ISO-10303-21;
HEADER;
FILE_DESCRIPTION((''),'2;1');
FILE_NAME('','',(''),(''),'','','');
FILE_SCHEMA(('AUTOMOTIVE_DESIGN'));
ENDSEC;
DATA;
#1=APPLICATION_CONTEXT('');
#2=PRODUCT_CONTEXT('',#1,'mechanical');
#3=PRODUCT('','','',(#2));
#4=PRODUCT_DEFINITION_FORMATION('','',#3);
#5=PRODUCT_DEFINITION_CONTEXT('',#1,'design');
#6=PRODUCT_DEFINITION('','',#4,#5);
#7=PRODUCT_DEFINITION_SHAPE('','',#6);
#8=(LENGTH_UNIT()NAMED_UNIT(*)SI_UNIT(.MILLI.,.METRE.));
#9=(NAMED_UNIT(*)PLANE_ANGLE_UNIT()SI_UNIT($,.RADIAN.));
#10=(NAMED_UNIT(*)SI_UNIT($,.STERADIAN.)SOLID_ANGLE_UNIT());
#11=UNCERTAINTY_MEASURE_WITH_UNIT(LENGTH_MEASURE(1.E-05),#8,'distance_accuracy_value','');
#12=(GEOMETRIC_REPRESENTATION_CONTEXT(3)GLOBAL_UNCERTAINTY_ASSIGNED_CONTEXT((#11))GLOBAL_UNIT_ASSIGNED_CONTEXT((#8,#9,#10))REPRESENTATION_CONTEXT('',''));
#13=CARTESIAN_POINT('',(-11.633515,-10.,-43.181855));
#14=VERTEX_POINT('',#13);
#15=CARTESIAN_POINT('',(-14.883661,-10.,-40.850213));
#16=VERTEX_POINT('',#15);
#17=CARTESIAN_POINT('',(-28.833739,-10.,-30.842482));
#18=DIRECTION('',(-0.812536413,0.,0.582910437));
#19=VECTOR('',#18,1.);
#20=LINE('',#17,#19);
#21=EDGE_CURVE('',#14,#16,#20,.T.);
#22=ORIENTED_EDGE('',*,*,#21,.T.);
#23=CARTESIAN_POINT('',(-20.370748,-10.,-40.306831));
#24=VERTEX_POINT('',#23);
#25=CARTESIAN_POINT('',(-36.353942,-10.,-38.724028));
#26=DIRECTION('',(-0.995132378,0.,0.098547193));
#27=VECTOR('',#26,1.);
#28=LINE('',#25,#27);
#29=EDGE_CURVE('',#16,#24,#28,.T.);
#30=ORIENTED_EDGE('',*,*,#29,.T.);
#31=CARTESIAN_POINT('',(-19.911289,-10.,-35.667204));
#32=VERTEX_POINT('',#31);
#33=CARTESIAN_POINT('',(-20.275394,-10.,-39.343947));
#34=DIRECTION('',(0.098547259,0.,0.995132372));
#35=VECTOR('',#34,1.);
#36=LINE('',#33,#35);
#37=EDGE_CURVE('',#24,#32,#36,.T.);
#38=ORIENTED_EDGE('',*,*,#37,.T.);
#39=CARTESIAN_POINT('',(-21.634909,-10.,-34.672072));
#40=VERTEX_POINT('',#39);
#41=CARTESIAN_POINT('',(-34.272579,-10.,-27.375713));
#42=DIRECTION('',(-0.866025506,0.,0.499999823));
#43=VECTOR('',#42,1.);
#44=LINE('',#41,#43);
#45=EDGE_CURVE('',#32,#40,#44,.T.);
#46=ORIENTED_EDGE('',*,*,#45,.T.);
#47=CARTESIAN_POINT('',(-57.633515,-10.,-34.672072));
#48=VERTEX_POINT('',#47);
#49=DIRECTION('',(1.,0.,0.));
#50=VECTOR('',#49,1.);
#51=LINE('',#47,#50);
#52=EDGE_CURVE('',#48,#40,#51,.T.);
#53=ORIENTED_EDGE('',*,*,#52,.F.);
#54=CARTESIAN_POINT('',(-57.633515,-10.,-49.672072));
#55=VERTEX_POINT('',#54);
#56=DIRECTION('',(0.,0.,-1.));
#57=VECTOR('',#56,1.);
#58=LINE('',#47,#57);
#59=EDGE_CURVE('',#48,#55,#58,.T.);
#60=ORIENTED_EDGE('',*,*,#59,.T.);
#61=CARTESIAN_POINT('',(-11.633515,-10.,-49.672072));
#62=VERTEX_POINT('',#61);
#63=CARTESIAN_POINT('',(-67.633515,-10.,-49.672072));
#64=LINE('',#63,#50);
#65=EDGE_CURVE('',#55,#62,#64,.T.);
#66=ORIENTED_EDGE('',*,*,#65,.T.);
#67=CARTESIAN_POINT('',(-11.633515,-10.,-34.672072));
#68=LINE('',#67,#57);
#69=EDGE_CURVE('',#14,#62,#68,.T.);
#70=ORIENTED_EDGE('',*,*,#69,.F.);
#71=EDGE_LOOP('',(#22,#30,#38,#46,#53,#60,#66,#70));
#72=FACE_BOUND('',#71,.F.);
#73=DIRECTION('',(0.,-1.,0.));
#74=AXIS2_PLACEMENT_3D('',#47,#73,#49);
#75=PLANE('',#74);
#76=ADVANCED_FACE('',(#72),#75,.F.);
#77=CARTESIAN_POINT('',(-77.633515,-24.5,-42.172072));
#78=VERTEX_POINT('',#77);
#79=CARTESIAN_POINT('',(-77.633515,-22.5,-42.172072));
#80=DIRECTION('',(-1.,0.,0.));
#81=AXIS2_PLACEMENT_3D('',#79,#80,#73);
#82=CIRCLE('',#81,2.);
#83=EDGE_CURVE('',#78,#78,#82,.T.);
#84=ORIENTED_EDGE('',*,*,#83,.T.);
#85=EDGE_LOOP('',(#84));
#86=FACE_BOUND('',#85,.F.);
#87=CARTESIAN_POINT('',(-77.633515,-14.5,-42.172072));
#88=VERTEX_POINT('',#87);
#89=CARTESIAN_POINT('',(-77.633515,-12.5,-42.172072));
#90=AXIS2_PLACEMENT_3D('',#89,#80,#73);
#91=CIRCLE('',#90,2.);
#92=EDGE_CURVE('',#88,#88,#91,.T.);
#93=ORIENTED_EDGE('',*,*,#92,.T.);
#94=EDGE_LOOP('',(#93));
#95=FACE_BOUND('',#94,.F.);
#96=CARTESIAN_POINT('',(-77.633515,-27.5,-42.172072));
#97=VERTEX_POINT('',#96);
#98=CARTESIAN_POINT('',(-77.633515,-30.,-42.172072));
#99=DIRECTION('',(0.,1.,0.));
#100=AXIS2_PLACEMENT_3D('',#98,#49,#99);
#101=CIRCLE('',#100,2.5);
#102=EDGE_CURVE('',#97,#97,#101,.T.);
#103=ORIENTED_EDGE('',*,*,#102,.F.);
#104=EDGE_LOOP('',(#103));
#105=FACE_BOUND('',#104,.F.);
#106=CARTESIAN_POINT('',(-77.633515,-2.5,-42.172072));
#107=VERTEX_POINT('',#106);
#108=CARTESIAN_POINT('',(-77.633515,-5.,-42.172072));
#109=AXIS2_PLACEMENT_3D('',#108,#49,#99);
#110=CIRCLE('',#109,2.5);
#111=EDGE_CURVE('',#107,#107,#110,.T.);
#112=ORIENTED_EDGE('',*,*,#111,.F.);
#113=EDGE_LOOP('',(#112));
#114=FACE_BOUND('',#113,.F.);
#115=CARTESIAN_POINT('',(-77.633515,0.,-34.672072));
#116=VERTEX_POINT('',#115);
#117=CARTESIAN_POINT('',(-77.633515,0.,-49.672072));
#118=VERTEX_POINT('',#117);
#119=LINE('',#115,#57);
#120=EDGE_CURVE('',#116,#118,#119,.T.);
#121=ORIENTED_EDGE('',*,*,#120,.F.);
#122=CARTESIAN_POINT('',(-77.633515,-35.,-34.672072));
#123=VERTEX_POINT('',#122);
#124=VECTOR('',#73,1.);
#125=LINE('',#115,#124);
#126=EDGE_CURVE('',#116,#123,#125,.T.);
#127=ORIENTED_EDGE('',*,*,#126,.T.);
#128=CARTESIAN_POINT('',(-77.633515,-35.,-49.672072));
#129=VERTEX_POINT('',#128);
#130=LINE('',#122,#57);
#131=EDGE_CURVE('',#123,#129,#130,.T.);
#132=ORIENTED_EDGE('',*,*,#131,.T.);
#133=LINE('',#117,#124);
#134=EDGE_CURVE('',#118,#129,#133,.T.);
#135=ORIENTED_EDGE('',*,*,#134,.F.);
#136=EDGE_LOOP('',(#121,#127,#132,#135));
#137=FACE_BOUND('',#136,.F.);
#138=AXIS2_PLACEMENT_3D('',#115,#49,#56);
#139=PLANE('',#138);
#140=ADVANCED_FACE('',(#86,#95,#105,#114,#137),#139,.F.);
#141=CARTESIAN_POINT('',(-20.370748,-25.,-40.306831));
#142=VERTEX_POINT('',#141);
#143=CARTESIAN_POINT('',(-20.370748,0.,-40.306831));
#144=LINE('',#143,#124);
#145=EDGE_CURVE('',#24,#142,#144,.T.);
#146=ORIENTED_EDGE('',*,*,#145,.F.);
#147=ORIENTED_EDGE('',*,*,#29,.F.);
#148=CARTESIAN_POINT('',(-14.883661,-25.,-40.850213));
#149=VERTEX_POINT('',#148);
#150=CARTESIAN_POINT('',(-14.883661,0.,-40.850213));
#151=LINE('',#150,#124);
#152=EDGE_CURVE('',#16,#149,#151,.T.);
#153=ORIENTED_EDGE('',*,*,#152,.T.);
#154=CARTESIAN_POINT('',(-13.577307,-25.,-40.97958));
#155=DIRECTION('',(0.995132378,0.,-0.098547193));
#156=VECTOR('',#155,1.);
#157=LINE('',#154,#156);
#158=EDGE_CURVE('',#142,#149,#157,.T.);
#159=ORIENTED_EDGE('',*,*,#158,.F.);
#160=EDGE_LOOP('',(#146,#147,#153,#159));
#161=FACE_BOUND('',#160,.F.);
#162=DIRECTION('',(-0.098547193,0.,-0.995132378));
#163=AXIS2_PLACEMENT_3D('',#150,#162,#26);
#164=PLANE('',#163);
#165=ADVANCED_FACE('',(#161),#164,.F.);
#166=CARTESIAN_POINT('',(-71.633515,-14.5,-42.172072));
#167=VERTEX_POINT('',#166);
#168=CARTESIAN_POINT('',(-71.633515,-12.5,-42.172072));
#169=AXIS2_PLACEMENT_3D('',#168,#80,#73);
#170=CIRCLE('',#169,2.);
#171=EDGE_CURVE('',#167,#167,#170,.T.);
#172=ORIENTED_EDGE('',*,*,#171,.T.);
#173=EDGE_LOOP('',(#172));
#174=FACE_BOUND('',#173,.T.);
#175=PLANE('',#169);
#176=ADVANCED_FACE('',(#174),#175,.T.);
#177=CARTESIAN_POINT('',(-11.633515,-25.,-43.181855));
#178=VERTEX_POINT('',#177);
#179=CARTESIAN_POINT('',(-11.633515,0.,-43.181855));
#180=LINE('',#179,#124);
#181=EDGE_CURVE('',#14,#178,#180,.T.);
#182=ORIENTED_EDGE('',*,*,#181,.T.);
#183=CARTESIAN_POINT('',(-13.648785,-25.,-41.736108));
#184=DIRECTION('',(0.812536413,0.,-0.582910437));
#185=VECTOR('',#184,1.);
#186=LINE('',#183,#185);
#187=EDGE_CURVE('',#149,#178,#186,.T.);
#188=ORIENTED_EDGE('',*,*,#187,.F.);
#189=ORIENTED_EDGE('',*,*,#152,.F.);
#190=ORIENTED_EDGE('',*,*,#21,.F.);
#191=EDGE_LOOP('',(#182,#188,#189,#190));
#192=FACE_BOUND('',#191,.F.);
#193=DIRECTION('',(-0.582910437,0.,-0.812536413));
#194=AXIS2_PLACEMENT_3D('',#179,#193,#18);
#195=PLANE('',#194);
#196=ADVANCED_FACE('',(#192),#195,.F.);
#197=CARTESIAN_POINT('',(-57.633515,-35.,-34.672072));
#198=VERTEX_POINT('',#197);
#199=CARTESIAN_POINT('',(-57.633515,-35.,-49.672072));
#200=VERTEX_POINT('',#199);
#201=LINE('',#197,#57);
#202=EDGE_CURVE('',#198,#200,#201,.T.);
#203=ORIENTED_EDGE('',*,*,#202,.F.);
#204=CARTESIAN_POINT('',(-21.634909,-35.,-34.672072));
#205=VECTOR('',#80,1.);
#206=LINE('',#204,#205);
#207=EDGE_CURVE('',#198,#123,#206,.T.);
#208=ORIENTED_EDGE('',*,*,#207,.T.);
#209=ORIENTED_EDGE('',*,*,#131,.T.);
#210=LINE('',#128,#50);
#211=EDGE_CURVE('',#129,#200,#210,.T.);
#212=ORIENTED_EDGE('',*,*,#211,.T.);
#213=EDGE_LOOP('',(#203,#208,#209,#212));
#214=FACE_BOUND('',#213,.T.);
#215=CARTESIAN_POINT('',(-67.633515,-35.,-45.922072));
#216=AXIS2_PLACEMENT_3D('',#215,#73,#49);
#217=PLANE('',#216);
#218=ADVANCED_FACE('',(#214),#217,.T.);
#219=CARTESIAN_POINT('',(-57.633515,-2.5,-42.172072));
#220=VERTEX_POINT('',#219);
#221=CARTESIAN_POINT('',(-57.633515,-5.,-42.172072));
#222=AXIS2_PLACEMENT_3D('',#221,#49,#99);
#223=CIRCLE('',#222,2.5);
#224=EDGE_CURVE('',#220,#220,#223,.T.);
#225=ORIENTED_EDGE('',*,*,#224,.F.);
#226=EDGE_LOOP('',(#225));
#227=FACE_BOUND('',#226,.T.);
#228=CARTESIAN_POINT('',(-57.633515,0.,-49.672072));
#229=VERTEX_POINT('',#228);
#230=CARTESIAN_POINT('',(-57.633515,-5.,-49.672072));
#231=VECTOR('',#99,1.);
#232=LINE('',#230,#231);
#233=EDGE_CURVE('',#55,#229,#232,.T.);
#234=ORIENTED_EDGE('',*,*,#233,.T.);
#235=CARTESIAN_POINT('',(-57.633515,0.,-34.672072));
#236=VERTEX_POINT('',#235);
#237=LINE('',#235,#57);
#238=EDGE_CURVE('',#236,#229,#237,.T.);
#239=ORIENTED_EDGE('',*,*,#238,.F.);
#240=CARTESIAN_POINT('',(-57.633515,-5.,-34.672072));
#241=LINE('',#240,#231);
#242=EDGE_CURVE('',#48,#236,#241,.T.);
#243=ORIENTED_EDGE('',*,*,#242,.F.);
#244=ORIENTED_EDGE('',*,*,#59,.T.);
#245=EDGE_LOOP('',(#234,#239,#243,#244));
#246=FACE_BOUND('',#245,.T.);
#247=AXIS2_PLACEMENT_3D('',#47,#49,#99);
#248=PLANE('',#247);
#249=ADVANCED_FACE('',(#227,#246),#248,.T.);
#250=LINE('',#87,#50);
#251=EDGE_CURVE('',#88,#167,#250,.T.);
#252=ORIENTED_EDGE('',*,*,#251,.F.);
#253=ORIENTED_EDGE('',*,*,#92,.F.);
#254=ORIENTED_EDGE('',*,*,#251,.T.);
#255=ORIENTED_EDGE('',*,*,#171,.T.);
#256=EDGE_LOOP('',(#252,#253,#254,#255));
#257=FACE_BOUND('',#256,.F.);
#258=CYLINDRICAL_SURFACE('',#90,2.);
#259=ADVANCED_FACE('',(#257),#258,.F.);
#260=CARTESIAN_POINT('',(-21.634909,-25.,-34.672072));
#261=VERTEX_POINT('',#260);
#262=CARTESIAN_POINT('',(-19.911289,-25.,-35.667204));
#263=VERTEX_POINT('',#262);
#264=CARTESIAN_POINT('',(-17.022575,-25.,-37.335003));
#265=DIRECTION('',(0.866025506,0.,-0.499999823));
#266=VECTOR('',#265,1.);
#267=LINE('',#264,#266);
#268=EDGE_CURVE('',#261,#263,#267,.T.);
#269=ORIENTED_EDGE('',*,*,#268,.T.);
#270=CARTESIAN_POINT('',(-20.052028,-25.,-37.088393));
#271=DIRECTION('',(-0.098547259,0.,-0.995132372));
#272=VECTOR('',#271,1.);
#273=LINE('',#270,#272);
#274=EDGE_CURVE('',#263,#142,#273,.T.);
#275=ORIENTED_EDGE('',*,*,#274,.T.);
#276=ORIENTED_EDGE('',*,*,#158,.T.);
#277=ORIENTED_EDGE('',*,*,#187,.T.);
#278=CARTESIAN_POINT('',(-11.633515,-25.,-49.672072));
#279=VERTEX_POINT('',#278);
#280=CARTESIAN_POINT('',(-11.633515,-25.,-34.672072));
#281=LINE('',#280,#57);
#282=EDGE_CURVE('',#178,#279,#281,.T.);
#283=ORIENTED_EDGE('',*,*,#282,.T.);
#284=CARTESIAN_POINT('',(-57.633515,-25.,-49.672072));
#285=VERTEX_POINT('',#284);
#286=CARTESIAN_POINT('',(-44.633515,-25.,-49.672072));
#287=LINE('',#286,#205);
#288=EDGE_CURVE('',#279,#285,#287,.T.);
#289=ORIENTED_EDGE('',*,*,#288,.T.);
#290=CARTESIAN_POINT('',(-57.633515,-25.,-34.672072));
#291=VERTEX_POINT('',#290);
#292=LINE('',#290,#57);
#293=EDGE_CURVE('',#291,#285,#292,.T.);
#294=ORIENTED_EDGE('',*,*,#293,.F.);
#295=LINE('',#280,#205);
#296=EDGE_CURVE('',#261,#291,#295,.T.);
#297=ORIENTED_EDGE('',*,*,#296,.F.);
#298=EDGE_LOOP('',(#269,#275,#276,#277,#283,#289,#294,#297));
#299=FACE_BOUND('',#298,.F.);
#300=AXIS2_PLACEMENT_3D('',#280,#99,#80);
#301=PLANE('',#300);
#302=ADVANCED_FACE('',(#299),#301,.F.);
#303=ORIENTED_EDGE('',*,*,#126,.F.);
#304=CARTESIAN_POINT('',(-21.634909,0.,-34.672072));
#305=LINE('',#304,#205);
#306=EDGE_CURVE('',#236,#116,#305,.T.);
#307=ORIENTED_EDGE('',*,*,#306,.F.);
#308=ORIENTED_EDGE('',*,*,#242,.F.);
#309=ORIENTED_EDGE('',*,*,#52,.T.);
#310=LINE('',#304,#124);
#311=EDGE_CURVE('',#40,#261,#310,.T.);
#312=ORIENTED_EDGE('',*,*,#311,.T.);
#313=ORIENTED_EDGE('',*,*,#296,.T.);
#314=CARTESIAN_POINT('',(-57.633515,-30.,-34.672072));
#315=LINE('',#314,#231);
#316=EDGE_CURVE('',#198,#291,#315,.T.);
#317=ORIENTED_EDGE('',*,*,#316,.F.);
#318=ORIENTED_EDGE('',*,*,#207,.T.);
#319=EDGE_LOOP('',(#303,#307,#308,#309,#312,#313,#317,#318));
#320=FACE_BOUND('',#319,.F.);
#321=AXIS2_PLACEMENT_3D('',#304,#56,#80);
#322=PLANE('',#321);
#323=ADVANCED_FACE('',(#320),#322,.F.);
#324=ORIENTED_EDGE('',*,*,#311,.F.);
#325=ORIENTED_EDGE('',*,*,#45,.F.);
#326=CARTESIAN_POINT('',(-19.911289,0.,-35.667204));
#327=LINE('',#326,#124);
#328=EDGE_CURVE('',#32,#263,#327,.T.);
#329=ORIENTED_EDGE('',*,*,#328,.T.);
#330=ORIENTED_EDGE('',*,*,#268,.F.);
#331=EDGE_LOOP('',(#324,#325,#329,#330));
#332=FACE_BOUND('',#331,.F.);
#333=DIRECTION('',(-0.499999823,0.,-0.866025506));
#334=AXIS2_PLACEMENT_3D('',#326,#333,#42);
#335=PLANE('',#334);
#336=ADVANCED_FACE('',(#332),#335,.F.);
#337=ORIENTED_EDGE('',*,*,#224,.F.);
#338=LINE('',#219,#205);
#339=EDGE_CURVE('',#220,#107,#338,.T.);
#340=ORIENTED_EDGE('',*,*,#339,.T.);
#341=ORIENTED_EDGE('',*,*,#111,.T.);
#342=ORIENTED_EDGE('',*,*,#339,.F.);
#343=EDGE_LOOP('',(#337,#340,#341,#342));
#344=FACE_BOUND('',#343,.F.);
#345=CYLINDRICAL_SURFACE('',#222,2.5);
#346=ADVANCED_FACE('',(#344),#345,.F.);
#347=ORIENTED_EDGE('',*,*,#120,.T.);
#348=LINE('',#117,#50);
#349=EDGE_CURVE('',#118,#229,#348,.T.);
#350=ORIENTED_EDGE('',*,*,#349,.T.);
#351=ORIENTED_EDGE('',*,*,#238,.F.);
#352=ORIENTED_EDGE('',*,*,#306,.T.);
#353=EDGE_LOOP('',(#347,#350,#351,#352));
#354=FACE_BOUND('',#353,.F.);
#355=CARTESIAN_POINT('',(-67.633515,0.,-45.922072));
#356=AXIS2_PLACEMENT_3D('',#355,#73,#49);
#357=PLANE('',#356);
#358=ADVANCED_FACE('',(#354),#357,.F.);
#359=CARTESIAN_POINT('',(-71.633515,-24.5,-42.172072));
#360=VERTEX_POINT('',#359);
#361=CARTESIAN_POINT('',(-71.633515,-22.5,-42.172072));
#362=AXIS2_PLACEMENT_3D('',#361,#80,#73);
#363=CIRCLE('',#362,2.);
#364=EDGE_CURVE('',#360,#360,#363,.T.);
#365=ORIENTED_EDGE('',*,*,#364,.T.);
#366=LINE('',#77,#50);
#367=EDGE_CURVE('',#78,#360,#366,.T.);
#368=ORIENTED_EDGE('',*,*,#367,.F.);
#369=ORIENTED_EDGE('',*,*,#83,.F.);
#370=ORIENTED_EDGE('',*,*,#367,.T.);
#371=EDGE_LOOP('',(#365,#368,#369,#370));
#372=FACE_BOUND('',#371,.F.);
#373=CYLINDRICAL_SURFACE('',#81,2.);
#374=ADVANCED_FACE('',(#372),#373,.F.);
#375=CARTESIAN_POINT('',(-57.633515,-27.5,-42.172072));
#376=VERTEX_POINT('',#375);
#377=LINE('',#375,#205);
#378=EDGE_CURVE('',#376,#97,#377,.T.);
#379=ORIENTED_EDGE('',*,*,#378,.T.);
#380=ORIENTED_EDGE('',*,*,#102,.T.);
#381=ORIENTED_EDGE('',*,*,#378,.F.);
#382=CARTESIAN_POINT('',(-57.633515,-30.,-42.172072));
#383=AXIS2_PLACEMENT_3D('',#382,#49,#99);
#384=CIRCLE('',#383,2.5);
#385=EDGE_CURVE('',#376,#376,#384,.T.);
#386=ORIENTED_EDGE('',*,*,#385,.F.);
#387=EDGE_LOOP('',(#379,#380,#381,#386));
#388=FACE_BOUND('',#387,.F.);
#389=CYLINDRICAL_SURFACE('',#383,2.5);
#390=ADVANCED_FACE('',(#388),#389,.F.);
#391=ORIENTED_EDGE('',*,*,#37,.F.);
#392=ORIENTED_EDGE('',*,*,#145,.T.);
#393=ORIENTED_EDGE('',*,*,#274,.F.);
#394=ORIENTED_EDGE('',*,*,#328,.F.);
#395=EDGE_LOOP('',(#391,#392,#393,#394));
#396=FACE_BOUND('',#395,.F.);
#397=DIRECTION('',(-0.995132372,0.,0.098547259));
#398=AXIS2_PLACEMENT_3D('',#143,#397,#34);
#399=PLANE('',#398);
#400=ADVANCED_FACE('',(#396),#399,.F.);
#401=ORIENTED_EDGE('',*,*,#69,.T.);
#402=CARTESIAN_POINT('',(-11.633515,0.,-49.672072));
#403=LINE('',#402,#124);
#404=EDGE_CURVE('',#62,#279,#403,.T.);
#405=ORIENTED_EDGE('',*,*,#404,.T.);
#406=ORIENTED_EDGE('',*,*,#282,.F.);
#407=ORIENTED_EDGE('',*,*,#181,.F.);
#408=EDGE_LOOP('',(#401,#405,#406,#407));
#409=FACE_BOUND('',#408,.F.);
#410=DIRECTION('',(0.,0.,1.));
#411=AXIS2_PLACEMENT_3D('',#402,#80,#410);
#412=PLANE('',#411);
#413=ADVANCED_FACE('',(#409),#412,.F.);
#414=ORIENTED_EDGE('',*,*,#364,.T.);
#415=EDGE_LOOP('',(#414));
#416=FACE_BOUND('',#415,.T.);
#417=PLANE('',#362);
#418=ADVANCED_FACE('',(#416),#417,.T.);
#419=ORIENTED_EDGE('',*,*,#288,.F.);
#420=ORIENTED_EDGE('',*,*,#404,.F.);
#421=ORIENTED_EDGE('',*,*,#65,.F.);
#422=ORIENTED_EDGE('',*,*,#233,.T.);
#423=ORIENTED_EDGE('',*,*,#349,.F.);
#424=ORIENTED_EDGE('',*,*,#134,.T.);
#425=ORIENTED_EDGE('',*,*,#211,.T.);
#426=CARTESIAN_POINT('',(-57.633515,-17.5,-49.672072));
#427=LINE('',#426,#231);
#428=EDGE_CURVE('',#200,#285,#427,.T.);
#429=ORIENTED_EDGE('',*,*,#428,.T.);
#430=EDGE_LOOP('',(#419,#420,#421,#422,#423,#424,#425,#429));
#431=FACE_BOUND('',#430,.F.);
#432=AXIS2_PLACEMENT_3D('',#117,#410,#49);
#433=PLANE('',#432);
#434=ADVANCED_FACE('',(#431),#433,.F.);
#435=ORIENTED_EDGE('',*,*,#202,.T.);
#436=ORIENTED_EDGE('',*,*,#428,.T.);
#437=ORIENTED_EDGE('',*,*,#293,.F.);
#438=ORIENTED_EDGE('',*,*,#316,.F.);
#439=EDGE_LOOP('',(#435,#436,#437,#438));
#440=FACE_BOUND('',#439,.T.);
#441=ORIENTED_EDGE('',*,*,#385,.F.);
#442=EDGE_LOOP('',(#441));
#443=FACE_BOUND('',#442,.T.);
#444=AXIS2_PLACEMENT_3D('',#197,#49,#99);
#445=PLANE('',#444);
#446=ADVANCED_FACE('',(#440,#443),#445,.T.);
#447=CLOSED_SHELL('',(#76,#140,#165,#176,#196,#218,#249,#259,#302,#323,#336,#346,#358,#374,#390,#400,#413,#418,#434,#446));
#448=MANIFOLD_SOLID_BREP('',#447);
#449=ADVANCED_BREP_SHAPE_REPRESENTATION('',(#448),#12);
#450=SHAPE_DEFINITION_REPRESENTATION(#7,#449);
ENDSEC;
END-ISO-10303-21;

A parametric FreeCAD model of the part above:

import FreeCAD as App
import Part
import Sketcher

V = App.Vector
Q = App.Units.Quantity


def add_polygon(sketch, points):
    """Adds a closed chain of lines whose ends are joined by coincident constraints."""
    first, n = sketch.GeometryCount, len(points)
    for a, b in zip(points, points[1:] + points[:1]):
        sketch.addGeometry(Part.LineSegment(App.Vector(*a, 0), App.Vector(*b, 0)), False)
    for i in range(n):
        sketch.addConstraint(Sketcher.Constraint("Coincident", first + i, 2, first + (i + 1) % n, 1))

doc = App.newDocument("Part")
body = doc.addObject("PartDesign::Body", "Body")

# Sketch on XZ plane
sketch1 = body.newObject("Sketcher::SketchObject", "Sketch")
sketch1.AttachmentSupport = (doc.getObject("XZ_Plane"), [""])
sketch1.MapMode = "FlatFace"
add_polygon(sketch1, [(-77.6, -49.7), (-11.6, -49.7), (-11.6, -43.2), (-14.9, -40.9), (-20.4, -40.3), (-19.9, -35.7), (-21.6, -34.7), (-77.6, -34.7)])  # lines 0-7
sketch1.addConstraint(Sketcher.Constraint("Horizontal", 0))
sketch1.addConstraint(Sketcher.Constraint("Vertical", 1))
sketch1.addConstraint(Sketcher.Constraint("Horizontal", 6))
sketch1.addConstraint(Sketcher.Constraint("Vertical", 7))
sketch1.addConstraint(Sketcher.Constraint("Perpendicular", 3, 4))
sketch1.addConstraint(Sketcher.Constraint("DistanceX", 0, 1, 0, 2, 66.0))
sketch1.addConstraint(Sketcher.Constraint("DistanceY", 7, 2, 7, 1, 15.0))
sketch1.addConstraint(Sketcher.Constraint("Angle", 5, Q("150.000012 deg")))
sketch1.addConstraint(Sketcher.Constraint("Distance", 2, 4.0))
sketch1.addConstraint(Sketcher.Constraint("Distance", 4, 4.662321))
sketch1.addConstraint(Sketcher.Constraint("DistanceX", 6, 2, 6, 1, 55.998606))
sketch1.addConstraint(Sketcher.Constraint("DistanceY", 1, 1, 1, 2, 6.490217))
sketch1.addConstraint(Sketcher.Constraint("DistanceX", 2, 2, -1, 1, 14.883661))
sketch1.addConstraint(Sketcher.Constraint("DistanceY", 3, 2, -1, 1, 40.306831))
sketch1.addConstraint(Sketcher.Constraint("DistanceX", 4, 2, -1, 1, 19.911289))
sketch1.addConstraint(Sketcher.Constraint("DistanceX", 5, 2, -1, 1, 21.634909))
pad1 = body.newObject("PartDesign::Pad", "Pad")
pad1.Profile = sketch1
pad1.Length = 35

# Sketch on XY plane
sketch2 = body.newObject("Sketcher::SketchObject", "Sketch001")
sketch2.AttachmentSupport = (doc.getObject("XY_Plane"), [""])
sketch2.MapMode = "FlatFace"
sketch2.AttachmentOffset = App.Placement(V(0, 0, -34.672072), App.Rotation())
add_polygon(sketch2, [(-58, 0), (-58, -10), (-12, -10), (-12, 0)])  # lines 0-3
add_polygon(sketch2, [(-12, -35), (-12, -25), (-58, -25), (-58, -35)])  # lines 4-7
sketch2.addConstraint(Sketcher.Constraint("Vertical", 0))
sketch2.addConstraint(Sketcher.Constraint("Horizontal", 1))
sketch2.addConstraint(Sketcher.Constraint("Vertical", 2))
sketch2.addConstraint(Sketcher.Constraint("Horizontal", 3))
sketch2.addConstraint(Sketcher.Constraint("Vertical", 4))
sketch2.addConstraint(Sketcher.Constraint("Horizontal", 5))
sketch2.addConstraint(Sketcher.Constraint("Vertical", 6))
sketch2.addConstraint(Sketcher.Constraint("Horizontal", 7))
sketch2.addConstraint(Sketcher.Constraint("PointOnObject", 2, 2, -1))
sketch2.addConstraint(Sketcher.Constraint("Vertical", 2, 2, 4, 2))
sketch2.addConstraint(Sketcher.Constraint("Vertical", 3, 2, 5, 2))
sketch2.addConstraint(Sketcher.Constraint("Equal", 2, 4))
sketch2.addConstraint(Sketcher.Constraint("DistanceX", 1, 1, 1, 2, 46.0))
sketch2.addConstraint(Sketcher.Constraint("DistanceY", 0, 2, 0, 1, 10.0))
sketch2.addConstraint(Sketcher.Constraint("DistanceY", 4, 2, -1, 1, 25.0))
sketch2.addConstraint(Sketcher.Constraint("DistanceX", 0, 2, -1, 1, 57.633515))
pocket1 = body.newObject("PartDesign::Pocket", "Pocket")
pocket1.Profile = sketch2
pocket1.Type = "ThroughAll"

# Sketch on YZ plane
sketch3 = body.newObject("Sketcher::SketchObject", "Sketch002")
sketch3.AttachmentSupport = (doc.getObject("YZ_Plane"), [""])
sketch3.MapMode = "FlatFace"
sketch3.AttachmentOffset = App.Placement(V(0, 0, -57.633515), App.Rotation())
sketch3.addGeometry(Part.Circle(V(-30, -42.2, 0), V(0, 0, 1), 2.5), False)
sketch3.addGeometry(Part.Circle(V(-5, -42.2, 0), V(0, 0, 1), 2.5), False)
sketch3.addConstraint(Sketcher.Constraint("Equal", 0, 1))
sketch3.addConstraint(Sketcher.Constraint("Horizontal", 0, 3, 1, 3))
sketch3.addConstraint(Sketcher.Constraint("Diameter", 0, 5.0))
sketch3.addConstraint(Sketcher.Constraint("DistanceX", 0, 3, -1, 1, 30.0))
sketch3.addConstraint(Sketcher.Constraint("DistanceX", 1, 3, -1, 1, 5.0))
sketch3.addConstraint(Sketcher.Constraint("DistanceY", 0, 3, -1, 1, 42.172072))
pocket2 = body.newObject("PartDesign::Pocket", "Pocket001")
pocket2.Profile = sketch3
pocket2.Type = "ThroughAll"

# Sketch on YZ plane
sketch4 = body.newObject("Sketcher::SketchObject", "Sketch003")
sketch4.AttachmentSupport = (doc.getObject("YZ_Plane"), [""])
sketch4.MapMode = "FlatFace"
sketch4.AttachmentOffset = App.Placement(V(0, 0, -77.633515), App.Rotation())
sketch4.addGeometry(Part.Circle(V(-12.5, -42.2, 0), V(0, 0, 1), 2), False)
sketch4.addGeometry(Part.Circle(V(-22.5, -42.2, 0), V(0, 0, 1), 2), False)
sketch4.addConstraint(Sketcher.Constraint("Equal", 0, 1))
sketch4.addConstraint(Sketcher.Constraint("Horizontal", 0, 3, 1, 3))
sketch4.addConstraint(Sketcher.Constraint("Diameter", 0, 4.0))
sketch4.addConstraint(Sketcher.Constraint("DistanceX", 1, 3, 0, 3, 10.0))
sketch4.addConstraint(Sketcher.Constraint("DistanceX", 0, 3, -1, 1, 12.5))
sketch4.addConstraint(Sketcher.Constraint("DistanceY", 0, 3, -1, 1, 42.172072))
pocket3 = body.newObject("PartDesign::Pocket", "Pocket002")
pocket3.Profile = sketch4
pocket3.Length = 6
pocket3.Reversed = True

doc.recompute()
